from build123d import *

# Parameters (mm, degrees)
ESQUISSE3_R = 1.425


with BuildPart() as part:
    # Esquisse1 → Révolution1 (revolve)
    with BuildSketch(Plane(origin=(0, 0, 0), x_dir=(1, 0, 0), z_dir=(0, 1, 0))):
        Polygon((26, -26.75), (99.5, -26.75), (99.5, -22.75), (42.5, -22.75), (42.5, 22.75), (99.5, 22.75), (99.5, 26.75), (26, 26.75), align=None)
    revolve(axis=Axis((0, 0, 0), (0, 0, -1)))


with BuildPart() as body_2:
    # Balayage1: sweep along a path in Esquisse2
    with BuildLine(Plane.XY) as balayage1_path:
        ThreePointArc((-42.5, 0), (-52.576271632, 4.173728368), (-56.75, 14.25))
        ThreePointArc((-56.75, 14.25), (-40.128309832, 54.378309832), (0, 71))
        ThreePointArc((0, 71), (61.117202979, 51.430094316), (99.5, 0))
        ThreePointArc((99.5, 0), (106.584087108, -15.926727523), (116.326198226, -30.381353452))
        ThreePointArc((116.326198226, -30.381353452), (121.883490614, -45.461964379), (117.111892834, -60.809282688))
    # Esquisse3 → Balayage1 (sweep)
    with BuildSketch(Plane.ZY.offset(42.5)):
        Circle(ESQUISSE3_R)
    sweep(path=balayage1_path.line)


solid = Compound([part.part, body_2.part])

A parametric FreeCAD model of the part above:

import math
import FreeCAD as App
import Part
import Sketcher

V = App.Vector
Q = App.Units.Quantity

doc = App.newDocument("Part")
params = doc.addObject("Spreadsheet::Sheet", "Params")
for row, (alias, value) in enumerate([
    ("sketch1_width", "57 mm"),
    ("sketch1_height", "4 mm"),
    ("sketch1_width2", "73.5 mm"),
    ("sketch1_height2", "45.5 mm"),
    ("revolution_angle", "360 deg"),
    ("sketch2_diameter", "2.85 mm"),
    ("sketch3_radius", "100 mm"),
    ("sketch3_radius2", "25 mm"),
    ("sketch3_radius3", "14.25 mm"),
    ("sketch3_radius4", "56.75 mm"),
], start=1):
    params.set(f"A{row}", alias)
    params.set(f"B{row}", "=" + value)
    params.setAlias(f"B{row}", alias)

body = doc.addObject("PartDesign::Body", "Body")

sketch1 = body.newObject("Sketcher::SketchObject", "Sketch")
sketch1.AttachmentSupport = (doc.getObject("XZ_Plane"), [""])
sketch1.MapMode = "FlatFace"
sketch1.addGeometry([
    Part.LineSegment(V(26, 26.8, 0), V(99.5, 26.8, 0)),
    Part.LineSegment(V(99.5, 26.8, 0), V(99.5, 22.8, 0)),
    Part.LineSegment(V(99.5, 22.8, 0), V(42.5, 22.8, 0)),
    Part.LineSegment(V(42.5, 22.8, 0), V(42.5, -22.8, 0)),
    Part.LineSegment(V(42.5, -22.8, 0), V(99.5, -22.8, 0)),
    Part.LineSegment(V(99.5, -22.8, 0), V(99.5, -26.8, 0)),
    Part.LineSegment(V(99.5, -26.8, 0), V(26, -26.8, 0)),
    Part.LineSegment(V(26, -26.8, 0), V(26, 26.8, 0)),
], False)
sketch1.addConstraint([
    Sketcher.Constraint("Coincident", 0, 2, 1, 1),
    Sketcher.Constraint("Coincident", 1, 2, 2, 1),
    Sketcher.Constraint("Coincident", 2, 2, 3, 1),
    Sketcher.Constraint("Coincident", 3, 2, 4, 1),
    Sketcher.Constraint("Coincident", 4, 2, 5, 1),
    Sketcher.Constraint("Coincident", 5, 2, 6, 1),
    Sketcher.Constraint("Coincident", 6, 2, 7, 1),
    Sketcher.Constraint("Coincident", 7, 2, 0, 1),
    Sketcher.Constraint("Horizontal", 0),
    Sketcher.Constraint("Vertical", 1),
    Sketcher.Constraint("Horizontal", 2),
    Sketcher.Constraint("Vertical", 3),
    Sketcher.Constraint("Horizontal", 4),
    Sketcher.Constraint("Vertical", 5),
    Sketcher.Constraint("Horizontal", 6),
    Sketcher.Constraint("Vertical", 7),
    Sketcher.Constraint("Symmetric", 1, 2, 4, 2, -1),
    Sketcher.Constraint("Equal", 1, 5),
    Sketcher.Constraint("DistanceX", 2, 2, 2, 1, Q("57 mm")),
    Sketcher.Constraint("DistanceY", 1, 2, 1, 1, Q("4 mm")),
    Sketcher.Constraint("DistanceX", 0, 1, 0, 2, Q("73.5 mm")),
    Sketcher.Constraint("DistanceY", 3, 2, 3, 1, Q("45.5 mm")),
    Sketcher.Constraint("DistanceX", -1, 1, 6, 2, Q("26 mm")),
])
sketch1.setExpression("Constraints[18]", "Params.sketch1_width")
sketch1.setExpression("Constraints[19]", "Params.sketch1_height")
sketch1.setExpression("Constraints[20]", "Params.sketch1_width2")
sketch1.setExpression("Constraints[21]", "Params.sketch1_height2")
revolution = body.newObject("PartDesign::Revolution", "Revolution")
revolution.Profile = sketch1
revolution.ReferenceAxis = (sketch1, ["V_Axis"])
revolution.setExpression("Angle", "Params.revolution_angle")
body2 = doc.addObject("PartDesign::Body", "Body001")

sketch2 = body2.newObject("Sketcher::SketchObject", "Sketch001")
sketch2.AttachmentSupport = (doc.getObject("YZ_Plane001"), [""])
sketch2.MapMode = "FlatFace"
sketch2.AttachmentOffset = App.Placement(V(0, 0, -42.5), App.Rotation())
sketch2.addGeometry(Part.Circle(V(0, 0, 0), V(0, 0, 1), 1.4), False)
sketch2.addConstraint([
    Sketcher.Constraint("Coincident", 0, 3, -1, 1),
    Sketcher.Constraint("Diameter", 0, Q("2.85 mm")),
])
sketch2.setExpression("Constraints[1]", "Params.sketch2_diameter")

sketch3 = body2.newObject("Sketcher::SketchObject", "Sketch002")
sketch3.AttachmentSupport = (doc.getObject("XY_Plane001"), [""])
sketch3.MapMode = "FlatFace"
sketch3.addGeometry([
    Part.ArcOfCircle(Part.Circle(V(-42, 14, 0), V(0, 0, 1), 14), math.radians(180), math.radians(270)),
    Part.ArcOfCircle(Part.Circle(V(0, 14, 0), V(0, 0, 1), 57), math.radians(90), math.radians(180)),
    Part.ArcOfCircle(Part.Circle(V(0, -34, 0), V(0, 0, 1), 105), math.radians(19), math.radians(90)),
    Part.ArcOfCircle(Part.Circle(V(194, 33, 0), V(0, 0, 1), 100), math.radians(-161.02), math.radians(-141.02)),
    Part.ArcOfCircle(Part.Circle(V(97, -46, 0), V(0, 0, 1), 25), math.radians(-36), math.radians(39)),
], False)
sketch3.addConstraint([
    Sketcher.Constraint("Tangent", 0, 1, 1, 2),
    Sketcher.Constraint("Tangent", 1, 1, 2, 2),
    Sketcher.Constraint("Tangent", 2, 1, 3, 1),
    Sketcher.Constraint("Tangent", 3, 2, 4, 2),
    Sketcher.Constraint("PointOnObject", 1, 3, -2),
    Sketcher.Constraint("PointOnObject", 2, 3, -2),
    Sketcher.Constraint("PointOnObject", 0, 2, -1),
    Sketcher.Constraint("PointOnObject", 2, 1, -1),
    Sketcher.Constraint("Horizontal", 0, 3, 1, 3),
    Sketcher.Constraint("Radius", 3, Q("100 mm")),
    Sketcher.Constraint("Radius", 4, Q("25 mm")),
    Sketcher.Constraint("Radius", 0, Q("14.25 mm")),
    Sketcher.Constraint("Radius", 1, Q("56.75 mm")),
    Sketcher.Constraint("DistanceX", 0, 2, -1, 1, Q("42.5 mm")),
    Sketcher.Constraint("DistanceX", -1, 1, 2, 1, Q("99.5 mm")),
    Sketcher.Constraint("DistanceX", -1, 1, 3, 2, Q("116.326198 mm")),
    Sketcher.Constraint("DistanceY", 4, 1, 3, 2, Q("30.427929 mm")),
])
sketch3.setExpression("Constraints[9]", "Params.sketch3_radius")
sketch3.setExpression("Constraints[10]", "Params.sketch3_radius2")
sketch3.setExpression("Constraints[11]", "Params.sketch3_radius3")
sketch3.setExpression("Constraints[12]", "Params.sketch3_radius4")
doc.recompute()

additivepipe = body2.newObject("PartDesign::AdditivePipe", "AdditivePipe")
additivepipe.Profile = sketch2
additivepipe.Spine = (sketch3, ["Edge1", "Edge2", "Edge3", "Edge4", "Edge5"])

doc.recompute()
